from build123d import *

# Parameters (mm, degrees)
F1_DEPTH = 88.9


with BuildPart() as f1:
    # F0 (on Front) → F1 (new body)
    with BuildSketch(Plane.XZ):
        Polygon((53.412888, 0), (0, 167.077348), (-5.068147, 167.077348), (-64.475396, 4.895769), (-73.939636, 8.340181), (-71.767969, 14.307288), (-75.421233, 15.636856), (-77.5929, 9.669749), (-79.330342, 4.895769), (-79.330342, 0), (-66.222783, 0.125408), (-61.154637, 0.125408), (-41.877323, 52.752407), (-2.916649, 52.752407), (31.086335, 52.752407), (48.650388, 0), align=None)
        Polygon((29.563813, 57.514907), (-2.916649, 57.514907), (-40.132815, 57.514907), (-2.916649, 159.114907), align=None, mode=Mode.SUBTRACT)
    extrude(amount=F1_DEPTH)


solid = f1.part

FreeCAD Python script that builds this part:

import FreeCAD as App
import Part
import Sketcher
from FreeCAD import Vector
Q = App.Units.Quantity


def add_polygon(sketch, points):
    """Adds a closed chain of lines whose ends are joined by coincident constraints."""
    first, n = sketch.GeometryCount, len(points)
    for a, b in zip(points, points[1:] + points[:1]):
        sketch.addGeometry(Part.LineSegment(App.Vector(*a, 0), App.Vector(*b, 0)), False)
    for i in range(n):
        sketch.addConstraint(Sketcher.Constraint("Coincident", first + i, 2, first + (i + 1) % n, 1))

doc = App.newDocument("Part")
body = doc.addObject("PartDesign::Body", "Body")

# Sketch on XZ plane
sketch1 = body.newObject("Sketcher::SketchObject", "Sketch")
sketch1.AttachmentSupport = (doc.getObject("XZ_Plane"), [""])
sketch1.MapMode = "FlatFace"
add_polygon(sketch1, [(53.4, 0), (0, 167.1), (-5.1, 167.1), (-64.5, 4.9), (-73.9, 8.3), (-71.8, 14.3), (-75.4, 15.6), (-77.6, 9.7), (-79.3, 4.9), (-79.3, 0), (-66.2, 0.1), (-61.2, 0.1), (-41.9, 52.8), (31.1, 52.8), (48.7, 0)])  # lines 0-14
add_polygon(sketch1, [(-2.9, 159.1), (29.6, 57.5), (-40.1, 57.5)])  # lines 15-17
sketch1.addConstraint(Sketcher.Constraint("Horizontal", 1))
sketch1.addConstraint(Sketcher.Constraint("Vertical", 8))
sketch1.addConstraint(Sketcher.Constraint("Horizontal", 10))
sketch1.addConstraint(Sketcher.Constraint("Horizontal", 12))
sketch1.addConstraint(Sketcher.Constraint("Horizontal", 14))
sketch1.addConstraint(Sketcher.Constraint("Horizontal", 16))
sketch1.addConstraint(Sketcher.Constraint("PointOnObject", 0, 2, -2))
sketch1.addConstraint(Sketcher.Constraint("PointOnObject", 8, 2, -1))
sketch1.addConstraint(Sketcher.Constraint("PointOnObject", 13, 2, -1))
sketch1.addConstraint(Sketcher.Constraint("Perpendicular", 3, 4))
sketch1.addConstraint(Sketcher.Constraint("Perpendicular", 4, 5))
sketch1.addConstraint(Sketcher.Constraint("Perpendicular", 5, 6))
sketch1.addConstraint(Sketcher.Constraint("Parallel", 6, 7))
sketch1.addConstraint(Sketcher.Constraint("Parallel", 2, 11))
sketch1.addConstraint(Sketcher.Constraint("Parallel", 0, 15))
sketch1.addConstraint(Sketcher.Constraint("Parallel", 11, 17))
sketch1.addConstraint(Sketcher.Constraint("Horizontal", 2, 2, 7, 2))
sketch1.addConstraint(Sketcher.Constraint("Equal", 1, 10))
sketch1.addConstraint(Sketcher.Constraint("Equal", 4, 6))
sketch1.addConstraint(Sketcher.Constraint("DistanceY", 15, 2, 17, 2, Q("4 in")))
sketch1.addConstraint(Sketcher.Constraint("Distance", 4, Q("0.25 in")))
sketch1.addConstraint(Sketcher.Constraint("DistanceX", 14, 1, 14, 2, Q("0.1875 in")))
sketch1.addConstraint(Sketcher.Constraint("DistanceY", 12, 2, 15, 2, Q("0.1875 in")))
sketch1.addConstraint(Sketcher.Constraint("DistanceX", 17, 2, 12, 2, Q("1.3387002 in")))
sketch1.addConstraint(Sketcher.Constraint("DistanceX", 16, 2, 16, 1, Q("69.696628 mm")))
sketch1.addConstraint(Sketcher.Constraint("DistanceY", 8, 2, 8, 1, Q("4.895769 mm")))
sketch1.addConstraint(Sketcher.Constraint("DistanceX", 6, 2, -1, 1, Q("77.5929 mm")))
sketch1.addConstraint(Sketcher.Constraint("DistanceY", 6, 2, 1, 2, Q("157.407599 mm")))
sketch1.addConstraint(Sketcher.Constraint("DistanceX", 3, 2, 10, 2, Q("12.784999 mm")))
sketch1.addConstraint(Sketcher.Constraint("DistanceY", 10, 2, 12, 2, Q("52.626999 mm")))
sketch1.addConstraint(Sketcher.Constraint("Distance", 0, Q("175.407459 mm")))
sketch1.addConstraint(Sketcher.Constraint("Distance", 9, Q("13.108159 mm")))
sketch1.addConstraint(Sketcher.Constraint("Distance", 11, Q("56.046551 mm")))
sketch1.addConstraint(Sketcher.Constraint("Distance", 13, Q("55.599572 mm")))
sketch1.addConstraint(Sketcher.Constraint("DistanceX", 1, 2, 1, 1, Q("5.068147 mm")))
sketch1.addConstraint(Sketcher.Constraint("DistanceX", 12, 1, 12, 2, Q("72.963658 mm")))
pad1 = body.newObject("PartDesign::Pad", "Pad")
pad1.Profile = sketch1
pad1.Length = Q("3.5 in")

doc.recompute()
